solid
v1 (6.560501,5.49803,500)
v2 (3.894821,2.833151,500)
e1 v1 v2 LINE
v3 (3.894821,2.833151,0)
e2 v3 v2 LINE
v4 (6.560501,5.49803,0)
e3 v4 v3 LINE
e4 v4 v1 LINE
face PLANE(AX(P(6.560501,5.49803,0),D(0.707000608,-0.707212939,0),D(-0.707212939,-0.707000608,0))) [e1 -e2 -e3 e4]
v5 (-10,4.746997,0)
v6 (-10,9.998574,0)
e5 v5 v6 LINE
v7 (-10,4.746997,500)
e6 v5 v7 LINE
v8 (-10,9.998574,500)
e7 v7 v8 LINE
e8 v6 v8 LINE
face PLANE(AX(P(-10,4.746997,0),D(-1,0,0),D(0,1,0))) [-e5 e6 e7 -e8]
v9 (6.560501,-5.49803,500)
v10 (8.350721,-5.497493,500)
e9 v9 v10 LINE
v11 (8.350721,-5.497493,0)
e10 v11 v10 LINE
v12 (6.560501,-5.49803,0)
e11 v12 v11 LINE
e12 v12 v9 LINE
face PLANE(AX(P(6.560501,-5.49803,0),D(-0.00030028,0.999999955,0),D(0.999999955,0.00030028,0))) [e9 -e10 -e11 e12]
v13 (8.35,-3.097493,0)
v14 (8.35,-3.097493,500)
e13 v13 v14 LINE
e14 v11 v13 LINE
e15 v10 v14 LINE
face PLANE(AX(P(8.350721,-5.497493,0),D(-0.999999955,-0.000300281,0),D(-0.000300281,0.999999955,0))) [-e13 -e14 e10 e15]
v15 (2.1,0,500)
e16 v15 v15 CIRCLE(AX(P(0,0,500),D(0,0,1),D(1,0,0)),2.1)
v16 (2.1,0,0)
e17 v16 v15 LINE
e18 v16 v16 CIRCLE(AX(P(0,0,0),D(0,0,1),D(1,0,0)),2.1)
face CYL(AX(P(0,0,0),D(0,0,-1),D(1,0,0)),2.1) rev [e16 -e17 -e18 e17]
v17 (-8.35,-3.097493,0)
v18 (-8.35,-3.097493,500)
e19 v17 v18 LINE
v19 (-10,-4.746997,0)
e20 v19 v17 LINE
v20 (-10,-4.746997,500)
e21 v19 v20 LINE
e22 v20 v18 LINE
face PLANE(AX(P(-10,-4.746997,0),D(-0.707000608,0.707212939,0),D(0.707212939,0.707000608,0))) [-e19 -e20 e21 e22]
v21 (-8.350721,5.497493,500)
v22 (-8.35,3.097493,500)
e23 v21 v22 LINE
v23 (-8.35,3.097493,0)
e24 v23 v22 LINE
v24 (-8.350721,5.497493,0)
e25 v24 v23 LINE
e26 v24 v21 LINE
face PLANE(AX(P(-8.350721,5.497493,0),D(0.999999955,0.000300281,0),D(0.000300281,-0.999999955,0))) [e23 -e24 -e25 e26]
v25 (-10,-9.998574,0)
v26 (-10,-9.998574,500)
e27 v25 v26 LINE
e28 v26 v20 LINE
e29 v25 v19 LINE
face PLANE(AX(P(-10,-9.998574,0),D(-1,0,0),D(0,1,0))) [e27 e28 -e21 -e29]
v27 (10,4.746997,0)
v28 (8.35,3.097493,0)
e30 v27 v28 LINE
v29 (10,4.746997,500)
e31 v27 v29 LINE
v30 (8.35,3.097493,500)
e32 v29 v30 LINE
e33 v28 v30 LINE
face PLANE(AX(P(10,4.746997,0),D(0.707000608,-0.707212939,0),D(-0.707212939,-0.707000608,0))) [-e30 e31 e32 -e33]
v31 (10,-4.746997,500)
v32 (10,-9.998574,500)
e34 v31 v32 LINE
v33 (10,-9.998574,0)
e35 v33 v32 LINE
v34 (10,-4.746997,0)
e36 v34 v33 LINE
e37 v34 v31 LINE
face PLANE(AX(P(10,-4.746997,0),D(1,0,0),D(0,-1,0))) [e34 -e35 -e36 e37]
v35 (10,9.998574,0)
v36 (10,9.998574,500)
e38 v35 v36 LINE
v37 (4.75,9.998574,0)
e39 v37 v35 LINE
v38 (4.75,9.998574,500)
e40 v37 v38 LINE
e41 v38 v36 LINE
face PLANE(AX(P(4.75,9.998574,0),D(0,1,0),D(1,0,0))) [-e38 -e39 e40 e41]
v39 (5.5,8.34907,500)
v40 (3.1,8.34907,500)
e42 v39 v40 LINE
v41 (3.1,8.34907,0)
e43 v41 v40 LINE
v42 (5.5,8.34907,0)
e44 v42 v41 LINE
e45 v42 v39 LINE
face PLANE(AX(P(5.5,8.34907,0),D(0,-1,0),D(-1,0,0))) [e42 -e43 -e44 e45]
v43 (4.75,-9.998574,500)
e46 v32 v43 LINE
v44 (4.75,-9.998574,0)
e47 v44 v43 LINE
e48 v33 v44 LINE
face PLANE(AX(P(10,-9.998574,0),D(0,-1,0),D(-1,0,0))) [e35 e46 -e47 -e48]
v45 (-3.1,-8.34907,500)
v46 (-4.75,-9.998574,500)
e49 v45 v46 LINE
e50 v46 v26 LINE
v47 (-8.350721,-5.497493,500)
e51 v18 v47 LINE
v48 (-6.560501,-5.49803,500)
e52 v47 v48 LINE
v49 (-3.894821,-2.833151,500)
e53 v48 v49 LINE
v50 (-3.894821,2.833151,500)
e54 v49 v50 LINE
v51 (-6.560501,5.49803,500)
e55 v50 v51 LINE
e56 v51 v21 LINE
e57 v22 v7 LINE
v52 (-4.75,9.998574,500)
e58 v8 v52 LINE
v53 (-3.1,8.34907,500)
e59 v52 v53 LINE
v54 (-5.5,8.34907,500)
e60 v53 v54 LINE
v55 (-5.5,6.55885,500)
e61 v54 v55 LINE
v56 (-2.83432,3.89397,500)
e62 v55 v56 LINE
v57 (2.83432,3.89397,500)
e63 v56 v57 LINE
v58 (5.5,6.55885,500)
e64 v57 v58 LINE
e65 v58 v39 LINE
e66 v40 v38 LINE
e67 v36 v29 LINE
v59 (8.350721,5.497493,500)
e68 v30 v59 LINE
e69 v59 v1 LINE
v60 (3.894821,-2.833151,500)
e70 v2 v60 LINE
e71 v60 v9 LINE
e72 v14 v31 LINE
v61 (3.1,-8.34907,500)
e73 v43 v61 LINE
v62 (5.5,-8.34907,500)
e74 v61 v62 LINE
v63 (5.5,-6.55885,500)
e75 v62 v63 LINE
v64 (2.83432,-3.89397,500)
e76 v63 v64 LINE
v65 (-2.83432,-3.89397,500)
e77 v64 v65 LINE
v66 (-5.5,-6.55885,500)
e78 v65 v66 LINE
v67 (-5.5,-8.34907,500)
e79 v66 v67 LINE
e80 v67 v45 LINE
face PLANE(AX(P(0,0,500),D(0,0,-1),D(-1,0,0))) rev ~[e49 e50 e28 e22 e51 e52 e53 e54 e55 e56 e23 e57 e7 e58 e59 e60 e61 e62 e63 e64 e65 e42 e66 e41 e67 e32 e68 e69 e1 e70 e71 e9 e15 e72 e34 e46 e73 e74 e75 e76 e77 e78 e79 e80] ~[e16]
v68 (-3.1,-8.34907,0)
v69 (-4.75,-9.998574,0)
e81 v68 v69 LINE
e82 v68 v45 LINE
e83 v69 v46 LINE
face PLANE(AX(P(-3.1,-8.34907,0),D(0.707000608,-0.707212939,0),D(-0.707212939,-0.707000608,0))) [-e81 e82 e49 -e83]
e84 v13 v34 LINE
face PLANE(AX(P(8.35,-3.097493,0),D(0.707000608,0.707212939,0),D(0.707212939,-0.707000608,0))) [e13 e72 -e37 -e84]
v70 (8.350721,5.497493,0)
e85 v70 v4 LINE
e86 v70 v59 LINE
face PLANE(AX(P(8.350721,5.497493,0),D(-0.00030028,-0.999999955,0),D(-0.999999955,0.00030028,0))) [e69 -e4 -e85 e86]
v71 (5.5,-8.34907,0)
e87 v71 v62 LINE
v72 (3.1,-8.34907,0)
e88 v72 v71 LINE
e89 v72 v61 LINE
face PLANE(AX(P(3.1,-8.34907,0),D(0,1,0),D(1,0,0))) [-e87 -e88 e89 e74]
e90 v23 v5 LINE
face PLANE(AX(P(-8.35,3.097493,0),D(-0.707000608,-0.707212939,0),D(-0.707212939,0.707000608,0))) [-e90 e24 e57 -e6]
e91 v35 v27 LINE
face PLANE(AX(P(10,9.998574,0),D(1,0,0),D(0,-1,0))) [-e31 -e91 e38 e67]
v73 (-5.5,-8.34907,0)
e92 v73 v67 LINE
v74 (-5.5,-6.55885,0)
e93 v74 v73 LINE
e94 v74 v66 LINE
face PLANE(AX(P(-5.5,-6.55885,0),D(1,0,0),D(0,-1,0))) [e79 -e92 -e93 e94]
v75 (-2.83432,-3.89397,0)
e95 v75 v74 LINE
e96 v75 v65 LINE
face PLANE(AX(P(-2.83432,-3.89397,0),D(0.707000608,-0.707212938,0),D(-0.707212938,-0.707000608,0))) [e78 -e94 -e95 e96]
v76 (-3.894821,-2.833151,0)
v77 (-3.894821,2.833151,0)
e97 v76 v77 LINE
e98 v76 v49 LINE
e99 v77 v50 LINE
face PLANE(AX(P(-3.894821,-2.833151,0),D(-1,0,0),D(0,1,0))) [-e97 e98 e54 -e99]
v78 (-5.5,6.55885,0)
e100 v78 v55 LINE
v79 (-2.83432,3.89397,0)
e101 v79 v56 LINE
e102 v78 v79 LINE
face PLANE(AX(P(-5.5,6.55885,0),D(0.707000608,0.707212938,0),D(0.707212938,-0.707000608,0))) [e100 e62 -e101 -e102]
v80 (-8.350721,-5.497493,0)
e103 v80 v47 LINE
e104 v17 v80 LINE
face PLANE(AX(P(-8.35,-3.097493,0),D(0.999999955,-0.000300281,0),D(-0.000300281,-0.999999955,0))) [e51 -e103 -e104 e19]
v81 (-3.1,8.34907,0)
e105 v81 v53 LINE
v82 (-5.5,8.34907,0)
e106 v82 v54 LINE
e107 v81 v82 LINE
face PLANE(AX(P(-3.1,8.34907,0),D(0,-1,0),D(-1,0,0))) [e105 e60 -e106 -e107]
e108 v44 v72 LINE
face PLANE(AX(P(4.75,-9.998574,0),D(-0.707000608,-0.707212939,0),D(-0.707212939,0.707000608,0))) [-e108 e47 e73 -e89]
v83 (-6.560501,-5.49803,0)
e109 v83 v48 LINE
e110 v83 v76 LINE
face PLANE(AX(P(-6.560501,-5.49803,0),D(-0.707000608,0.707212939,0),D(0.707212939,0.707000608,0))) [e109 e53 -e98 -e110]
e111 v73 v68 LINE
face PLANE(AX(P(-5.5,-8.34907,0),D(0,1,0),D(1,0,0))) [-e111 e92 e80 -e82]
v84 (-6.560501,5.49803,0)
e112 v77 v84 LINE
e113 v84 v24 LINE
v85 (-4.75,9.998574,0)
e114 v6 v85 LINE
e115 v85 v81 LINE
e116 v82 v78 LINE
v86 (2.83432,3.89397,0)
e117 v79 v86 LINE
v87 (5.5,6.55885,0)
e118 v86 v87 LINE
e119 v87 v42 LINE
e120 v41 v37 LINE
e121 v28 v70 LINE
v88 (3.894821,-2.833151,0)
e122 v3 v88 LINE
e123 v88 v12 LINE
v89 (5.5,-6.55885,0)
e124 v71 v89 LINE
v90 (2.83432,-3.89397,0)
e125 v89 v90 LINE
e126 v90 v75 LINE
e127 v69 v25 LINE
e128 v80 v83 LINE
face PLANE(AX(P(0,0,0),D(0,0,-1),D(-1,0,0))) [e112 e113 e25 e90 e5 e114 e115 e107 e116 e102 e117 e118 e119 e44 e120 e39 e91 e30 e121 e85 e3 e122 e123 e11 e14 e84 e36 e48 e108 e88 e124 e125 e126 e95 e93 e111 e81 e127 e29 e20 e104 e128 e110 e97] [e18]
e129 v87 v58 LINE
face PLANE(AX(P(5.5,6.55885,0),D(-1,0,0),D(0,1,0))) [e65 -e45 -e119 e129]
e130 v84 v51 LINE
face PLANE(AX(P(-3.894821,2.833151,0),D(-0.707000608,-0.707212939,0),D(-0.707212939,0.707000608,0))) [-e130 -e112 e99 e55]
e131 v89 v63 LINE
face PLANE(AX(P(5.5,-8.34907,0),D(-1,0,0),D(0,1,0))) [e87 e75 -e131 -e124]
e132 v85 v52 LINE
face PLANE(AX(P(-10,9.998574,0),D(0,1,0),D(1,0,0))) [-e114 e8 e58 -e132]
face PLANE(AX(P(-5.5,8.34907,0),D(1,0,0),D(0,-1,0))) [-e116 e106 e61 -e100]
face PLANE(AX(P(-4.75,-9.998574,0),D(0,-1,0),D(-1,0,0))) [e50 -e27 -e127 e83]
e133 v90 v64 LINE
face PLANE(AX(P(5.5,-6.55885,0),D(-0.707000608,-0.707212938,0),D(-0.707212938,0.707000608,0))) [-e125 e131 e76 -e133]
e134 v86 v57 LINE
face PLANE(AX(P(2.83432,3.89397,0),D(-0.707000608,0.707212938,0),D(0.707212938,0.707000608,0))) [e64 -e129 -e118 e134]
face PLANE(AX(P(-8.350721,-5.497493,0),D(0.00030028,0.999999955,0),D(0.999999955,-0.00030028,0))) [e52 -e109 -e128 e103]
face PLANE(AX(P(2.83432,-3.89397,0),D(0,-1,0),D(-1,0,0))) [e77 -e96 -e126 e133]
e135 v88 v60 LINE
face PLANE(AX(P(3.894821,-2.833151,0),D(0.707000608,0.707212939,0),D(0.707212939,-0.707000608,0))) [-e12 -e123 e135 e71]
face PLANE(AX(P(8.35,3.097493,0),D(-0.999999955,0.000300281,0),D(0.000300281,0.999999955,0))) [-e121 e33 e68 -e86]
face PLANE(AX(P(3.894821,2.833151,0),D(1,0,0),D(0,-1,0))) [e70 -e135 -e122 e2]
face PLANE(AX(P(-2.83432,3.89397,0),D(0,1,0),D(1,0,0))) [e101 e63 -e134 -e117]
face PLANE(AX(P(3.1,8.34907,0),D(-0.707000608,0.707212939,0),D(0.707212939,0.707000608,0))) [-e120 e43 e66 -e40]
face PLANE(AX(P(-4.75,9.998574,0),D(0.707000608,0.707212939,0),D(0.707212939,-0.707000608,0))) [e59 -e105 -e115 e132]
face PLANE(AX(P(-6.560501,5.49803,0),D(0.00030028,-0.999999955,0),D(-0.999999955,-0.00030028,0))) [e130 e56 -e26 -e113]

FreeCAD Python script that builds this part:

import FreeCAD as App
import Part
import Sketcher


def add_polygon(sketch, points):
    """Adds a closed chain of lines whose ends are joined by coincident constraints."""
    first, n = sketch.GeometryCount, len(points)
    for a, b in zip(points, points[1:] + points[:1]):
        sketch.addGeometry(Part.LineSegment(App.Vector(*a, 0), App.Vector(*b, 0)), False)
    for i in range(n):
        sketch.addConstraint(Sketcher.Constraint("Coincident", first + i, 2, first + (i + 1) % n, 1))

doc = App.newDocument("Part")
params = doc.addObject("Spreadsheet::Sheet", "Params")
for row, (alias, value) in enumerate([
    ("sketch1_diameter", "4.2 mm"),
    ("sketch1_width", "2.4 mm"),
    ("sketch1_length", "2.4 mm"),
    ("sketch1_width2", "5.25 mm"),
    ("pad1_length", "500 mm"),
], start=1):
    params.set(f"A{row}", alias)
    params.set(f"B{row}", "=" + value)
    params.setAlias(f"B{row}", alias)

body = doc.addObject("PartDesign::Body", "Body")

# Sketch on XY plane
sketch1 = body.newObject("Sketcher::SketchObject", "Sketch")
sketch1.AttachmentSupport = (doc.getObject("XY_Plane"), [""])
sketch1.MapMode = "FlatFace"
add_polygon(sketch1, [(5.5, 6.55885), (2.83432, 3.89397), (-2.83432, 3.89397), (-5.5, 6.55885), (-5.5, 8.34907), (-3.1, 8.34907), (-4.75, 9.998574), (-10, 9.998574), (-10, 4.746997), (-8.35, 3.097493), (-8.350721, 5.497493), (-6.560501, 5.49803), (-3.894821, 2.833151), (-3.894821, -2.833151), (-6.560501, -5.49803), (-8.350721, -5.497493), (-8.35, -3.097493), (-10, -4.746997), (-10, -9.998574), (-4.75, -9.998574), (-3.1, -8.34907), (-5.5, -8.34907), (-5.5, -6.55885), (-2.83432, -3.89397), (2.83432, -3.89397), (5.5, -6.55885), (5.5, -8.34907), (3.1, -8.34907), (4.75, -9.998574), (10, -9.998574), (10, -4.746997), (8.35, -3.097493), (8.350721, -5.497493), (6.560501, -5.49803), (3.894821, -2.833151), (3.894821, 2.833151), (6.560501, 5.49803), (8.350721, 5.497493), (8.35, 3.097493), (10, 4.746997), (10, 9.998574), (4.75, 9.998574), (3.1, 8.34907), (5.5, 8.34907)])  # lines 0-43
sketch1.addGeometry(Part.Circle(App.Vector(0, 0, 0), App.Vector(0, 0, 1), 2.1), False)  # 44
sketch1.addConstraint(Sketcher.Constraint("Horizontal", 1))
sketch1.addConstraint(Sketcher.Constraint("Vertical", 3))
sketch1.addConstraint(Sketcher.Constraint("Horizontal", 4))
sketch1.addConstraint(Sketcher.Constraint("Horizontal", 6))
sketch1.addConstraint(Sketcher.Constraint("Vertical", 7))
sketch1.addConstraint(Sketcher.Constraint("Vertical", 12))
sketch1.addConstraint(Sketcher.Constraint("Vertical", 17))
sketch1.addConstraint(Sketcher.Constraint("Horizontal", 18))
sketch1.addConstraint(Sketcher.Constraint("Horizontal", 20))
sketch1.addConstraint(Sketcher.Constraint("Vertical", 21))
sketch1.addConstraint(Sketcher.Constraint("Horizontal", 23))
sketch1.addConstraint(Sketcher.Constraint("Vertical", 25))
sketch1.addConstraint(Sketcher.Constraint("Horizontal", 26))
sketch1.addConstraint(Sketcher.Constraint("Horizontal", 28))
sketch1.addConstraint(Sketcher.Constraint("Vertical", 29))
sketch1.addConstraint(Sketcher.Constraint("Vertical", 34))
sketch1.addConstraint(Sketcher.Constraint("Vertical", 39))
sketch1.addConstraint(Sketcher.Constraint("Horizontal", 40))
sketch1.addConstraint(Sketcher.Constraint("Horizontal", 42))
sketch1.addConstraint(Sketcher.Constraint("Vertical", 43))
sketch1.addConstraint(Sketcher.Constraint("Coincident", 44, 3, -1, 1))
sketch1.addConstraint(Sketcher.Constraint("Symmetric", 0, 2, 22, 2, -1, 1))
sketch1.addConstraint(Sketcher.Constraint("Symmetric", 2, 2, 24, 2, -1, 1))
sketch1.addConstraint(Sketcher.Constraint("Symmetric", 4, 2, 26, 2, -1, 1))
sketch1.addConstraint(Sketcher.Constraint("Symmetric", 5, 2, 27, 2, -1, 1))
sketch1.addConstraint(Sketcher.Constraint("Symmetric", 7, 2, 29, 2, -1, 1))
sketch1.addConstraint(Sketcher.Constraint("Symmetric", 8, 2, 30, 2, -1, 1))
sketch1.addConstraint(Sketcher.Constraint("Symmetric", 9, 2, 31, 2, -1, 1))
sketch1.addConstraint(Sketcher.Constraint("Symmetric", 10, 2, 32, 2, -1, 1))
sketch1.addConstraint(Sketcher.Constraint("Symmetric", 11, 2, 33, 2, -1, 1))
sketch1.addConstraint(Sketcher.Constraint("Symmetric", 13, 2, 35, 2, -1, 1))
sketch1.addConstraint(Sketcher.Constraint("Symmetric", 14, 2, 36, 2, -1, 1))
sketch1.addConstraint(Sketcher.Constraint("Symmetric", 15, 2, 37, 2, -1, 1))
sketch1.addConstraint(Sketcher.Constraint("Symmetric", 16, 2, 38, 2, -1, 1))
sketch1.addConstraint(Sketcher.Constraint("Symmetric", 18, 2, 40, 2, -1, 1))
sketch1.addConstraint(Sketcher.Constraint("Symmetric", 19, 2, 41, 2, -1, 1))
sketch1.addConstraint(Sketcher.Constraint("Symmetric", 21, 2, 43, 2, -1, 1))
sketch1.addConstraint(Sketcher.Constraint("Symmetric", 21, 2, 24, 2, -2))
sketch1.addConstraint(Sketcher.Constraint("Symmetric", 19, 2, 26, 2, -2))
sketch1.addConstraint(Sketcher.Constraint("Symmetric", 18, 2, 27, 2, -2))
sketch1.addConstraint(Sketcher.Constraint("Symmetric", 16, 2, 29, 2, -2))
sketch1.addConstraint(Sketcher.Constraint("Symmetric", 15, 2, 30, 2, -2))
sketch1.addConstraint(Sketcher.Constraint("Symmetric", 14, 2, 31, 2, -2))
sketch1.addConstraint(Sketcher.Constraint("Symmetric", 13, 2, 32, 2, -2))
sketch1.addConstraint(Sketcher.Constraint("Parallel", 2, 5))
sketch1.addConstraint(Sketcher.Constraint("Parallel", 5, 8))
sketch1.addConstraint(Sketcher.Constraint("Perpendicular", 9, 10))
sketch1.addConstraint(Sketcher.Constraint("Parallel", 8, 11))
sketch1.addConstraint(Sketcher.Constraint("Parallel", 0, 13))
sketch1.addConstraint(Sketcher.Constraint("Parallel", 13, 16))
sketch1.addConstraint(Sketcher.Constraint("Parallel", 11, 24))
sketch1.addConstraint(Sketcher.Constraint("Parallel", 22, 35))
sketch1.addConstraint(Sketcher.Constraint("Equal", 5, 8))
sketch1.addConstraint(Sketcher.Constraint("Equal", 2, 11))
sketch1.addConstraint(Sketcher.Constraint("Diameter", 44, 4.2))
sketch1.addConstraint(Sketcher.Constraint("DistanceX", 4, 1, 4, 2, 2.4))
sketch1.addConstraint(Sketcher.Constraint("DistanceX", 6, 2, -1, 1, 10.0))
sketch1.addConstraint(Sketcher.Constraint("Distance", 9, 2.4))
sketch1.addConstraint(Sketcher.Constraint("DistanceX", 6, 2, 6, 1, 5.25))
sketch1.addConstraint(Sketcher.Constraint("DistanceX", 2, 2, -1, 1, 5.5))
sketch1.addConstraint(Sketcher.Constraint("DistanceY", 12, 2, 12, 1, 5.666302))
sketch1.addConstraint(Sketcher.Constraint("DistanceY", 13, 2, 1, 2, 9.392001))
sketch1.addConstraint(Sketcher.Constraint("DistanceX", 1, 2, 1, 1, 5.668641))
sketch1.addConstraint(Sketcher.Constraint("DistanceY", 3, 1, 3, 2, 1.79022))
sketch1.addConstraint(Sketcher.Constraint("DistanceX", 10, 2, -1, 1, 6.560501))
sketch1.addConstraint(Sketcher.Constraint("DistanceY", 1, 2, 3, 2, 4.455099))
sketch1.addConstraint(Sketcher.Constraint("DistanceX", 14, 2, 12, 2, 4.455899))
sketch1.setExpression("Constraints[98]", "Params.sketch1_diameter")
sketch1.setExpression("Constraints[99]", "Params.sketch1_width")
sketch1.setExpression("Constraints[101]", "Params.sketch1_length")
sketch1.setExpression("Constraints[102]", "Params.sketch1_width2")
pad1 = body.newObject("PartDesign::Pad", "Pad")
pad1.Profile = sketch1
pad1.setExpression("Length", "Params.pad1_length")

doc.recompute()
